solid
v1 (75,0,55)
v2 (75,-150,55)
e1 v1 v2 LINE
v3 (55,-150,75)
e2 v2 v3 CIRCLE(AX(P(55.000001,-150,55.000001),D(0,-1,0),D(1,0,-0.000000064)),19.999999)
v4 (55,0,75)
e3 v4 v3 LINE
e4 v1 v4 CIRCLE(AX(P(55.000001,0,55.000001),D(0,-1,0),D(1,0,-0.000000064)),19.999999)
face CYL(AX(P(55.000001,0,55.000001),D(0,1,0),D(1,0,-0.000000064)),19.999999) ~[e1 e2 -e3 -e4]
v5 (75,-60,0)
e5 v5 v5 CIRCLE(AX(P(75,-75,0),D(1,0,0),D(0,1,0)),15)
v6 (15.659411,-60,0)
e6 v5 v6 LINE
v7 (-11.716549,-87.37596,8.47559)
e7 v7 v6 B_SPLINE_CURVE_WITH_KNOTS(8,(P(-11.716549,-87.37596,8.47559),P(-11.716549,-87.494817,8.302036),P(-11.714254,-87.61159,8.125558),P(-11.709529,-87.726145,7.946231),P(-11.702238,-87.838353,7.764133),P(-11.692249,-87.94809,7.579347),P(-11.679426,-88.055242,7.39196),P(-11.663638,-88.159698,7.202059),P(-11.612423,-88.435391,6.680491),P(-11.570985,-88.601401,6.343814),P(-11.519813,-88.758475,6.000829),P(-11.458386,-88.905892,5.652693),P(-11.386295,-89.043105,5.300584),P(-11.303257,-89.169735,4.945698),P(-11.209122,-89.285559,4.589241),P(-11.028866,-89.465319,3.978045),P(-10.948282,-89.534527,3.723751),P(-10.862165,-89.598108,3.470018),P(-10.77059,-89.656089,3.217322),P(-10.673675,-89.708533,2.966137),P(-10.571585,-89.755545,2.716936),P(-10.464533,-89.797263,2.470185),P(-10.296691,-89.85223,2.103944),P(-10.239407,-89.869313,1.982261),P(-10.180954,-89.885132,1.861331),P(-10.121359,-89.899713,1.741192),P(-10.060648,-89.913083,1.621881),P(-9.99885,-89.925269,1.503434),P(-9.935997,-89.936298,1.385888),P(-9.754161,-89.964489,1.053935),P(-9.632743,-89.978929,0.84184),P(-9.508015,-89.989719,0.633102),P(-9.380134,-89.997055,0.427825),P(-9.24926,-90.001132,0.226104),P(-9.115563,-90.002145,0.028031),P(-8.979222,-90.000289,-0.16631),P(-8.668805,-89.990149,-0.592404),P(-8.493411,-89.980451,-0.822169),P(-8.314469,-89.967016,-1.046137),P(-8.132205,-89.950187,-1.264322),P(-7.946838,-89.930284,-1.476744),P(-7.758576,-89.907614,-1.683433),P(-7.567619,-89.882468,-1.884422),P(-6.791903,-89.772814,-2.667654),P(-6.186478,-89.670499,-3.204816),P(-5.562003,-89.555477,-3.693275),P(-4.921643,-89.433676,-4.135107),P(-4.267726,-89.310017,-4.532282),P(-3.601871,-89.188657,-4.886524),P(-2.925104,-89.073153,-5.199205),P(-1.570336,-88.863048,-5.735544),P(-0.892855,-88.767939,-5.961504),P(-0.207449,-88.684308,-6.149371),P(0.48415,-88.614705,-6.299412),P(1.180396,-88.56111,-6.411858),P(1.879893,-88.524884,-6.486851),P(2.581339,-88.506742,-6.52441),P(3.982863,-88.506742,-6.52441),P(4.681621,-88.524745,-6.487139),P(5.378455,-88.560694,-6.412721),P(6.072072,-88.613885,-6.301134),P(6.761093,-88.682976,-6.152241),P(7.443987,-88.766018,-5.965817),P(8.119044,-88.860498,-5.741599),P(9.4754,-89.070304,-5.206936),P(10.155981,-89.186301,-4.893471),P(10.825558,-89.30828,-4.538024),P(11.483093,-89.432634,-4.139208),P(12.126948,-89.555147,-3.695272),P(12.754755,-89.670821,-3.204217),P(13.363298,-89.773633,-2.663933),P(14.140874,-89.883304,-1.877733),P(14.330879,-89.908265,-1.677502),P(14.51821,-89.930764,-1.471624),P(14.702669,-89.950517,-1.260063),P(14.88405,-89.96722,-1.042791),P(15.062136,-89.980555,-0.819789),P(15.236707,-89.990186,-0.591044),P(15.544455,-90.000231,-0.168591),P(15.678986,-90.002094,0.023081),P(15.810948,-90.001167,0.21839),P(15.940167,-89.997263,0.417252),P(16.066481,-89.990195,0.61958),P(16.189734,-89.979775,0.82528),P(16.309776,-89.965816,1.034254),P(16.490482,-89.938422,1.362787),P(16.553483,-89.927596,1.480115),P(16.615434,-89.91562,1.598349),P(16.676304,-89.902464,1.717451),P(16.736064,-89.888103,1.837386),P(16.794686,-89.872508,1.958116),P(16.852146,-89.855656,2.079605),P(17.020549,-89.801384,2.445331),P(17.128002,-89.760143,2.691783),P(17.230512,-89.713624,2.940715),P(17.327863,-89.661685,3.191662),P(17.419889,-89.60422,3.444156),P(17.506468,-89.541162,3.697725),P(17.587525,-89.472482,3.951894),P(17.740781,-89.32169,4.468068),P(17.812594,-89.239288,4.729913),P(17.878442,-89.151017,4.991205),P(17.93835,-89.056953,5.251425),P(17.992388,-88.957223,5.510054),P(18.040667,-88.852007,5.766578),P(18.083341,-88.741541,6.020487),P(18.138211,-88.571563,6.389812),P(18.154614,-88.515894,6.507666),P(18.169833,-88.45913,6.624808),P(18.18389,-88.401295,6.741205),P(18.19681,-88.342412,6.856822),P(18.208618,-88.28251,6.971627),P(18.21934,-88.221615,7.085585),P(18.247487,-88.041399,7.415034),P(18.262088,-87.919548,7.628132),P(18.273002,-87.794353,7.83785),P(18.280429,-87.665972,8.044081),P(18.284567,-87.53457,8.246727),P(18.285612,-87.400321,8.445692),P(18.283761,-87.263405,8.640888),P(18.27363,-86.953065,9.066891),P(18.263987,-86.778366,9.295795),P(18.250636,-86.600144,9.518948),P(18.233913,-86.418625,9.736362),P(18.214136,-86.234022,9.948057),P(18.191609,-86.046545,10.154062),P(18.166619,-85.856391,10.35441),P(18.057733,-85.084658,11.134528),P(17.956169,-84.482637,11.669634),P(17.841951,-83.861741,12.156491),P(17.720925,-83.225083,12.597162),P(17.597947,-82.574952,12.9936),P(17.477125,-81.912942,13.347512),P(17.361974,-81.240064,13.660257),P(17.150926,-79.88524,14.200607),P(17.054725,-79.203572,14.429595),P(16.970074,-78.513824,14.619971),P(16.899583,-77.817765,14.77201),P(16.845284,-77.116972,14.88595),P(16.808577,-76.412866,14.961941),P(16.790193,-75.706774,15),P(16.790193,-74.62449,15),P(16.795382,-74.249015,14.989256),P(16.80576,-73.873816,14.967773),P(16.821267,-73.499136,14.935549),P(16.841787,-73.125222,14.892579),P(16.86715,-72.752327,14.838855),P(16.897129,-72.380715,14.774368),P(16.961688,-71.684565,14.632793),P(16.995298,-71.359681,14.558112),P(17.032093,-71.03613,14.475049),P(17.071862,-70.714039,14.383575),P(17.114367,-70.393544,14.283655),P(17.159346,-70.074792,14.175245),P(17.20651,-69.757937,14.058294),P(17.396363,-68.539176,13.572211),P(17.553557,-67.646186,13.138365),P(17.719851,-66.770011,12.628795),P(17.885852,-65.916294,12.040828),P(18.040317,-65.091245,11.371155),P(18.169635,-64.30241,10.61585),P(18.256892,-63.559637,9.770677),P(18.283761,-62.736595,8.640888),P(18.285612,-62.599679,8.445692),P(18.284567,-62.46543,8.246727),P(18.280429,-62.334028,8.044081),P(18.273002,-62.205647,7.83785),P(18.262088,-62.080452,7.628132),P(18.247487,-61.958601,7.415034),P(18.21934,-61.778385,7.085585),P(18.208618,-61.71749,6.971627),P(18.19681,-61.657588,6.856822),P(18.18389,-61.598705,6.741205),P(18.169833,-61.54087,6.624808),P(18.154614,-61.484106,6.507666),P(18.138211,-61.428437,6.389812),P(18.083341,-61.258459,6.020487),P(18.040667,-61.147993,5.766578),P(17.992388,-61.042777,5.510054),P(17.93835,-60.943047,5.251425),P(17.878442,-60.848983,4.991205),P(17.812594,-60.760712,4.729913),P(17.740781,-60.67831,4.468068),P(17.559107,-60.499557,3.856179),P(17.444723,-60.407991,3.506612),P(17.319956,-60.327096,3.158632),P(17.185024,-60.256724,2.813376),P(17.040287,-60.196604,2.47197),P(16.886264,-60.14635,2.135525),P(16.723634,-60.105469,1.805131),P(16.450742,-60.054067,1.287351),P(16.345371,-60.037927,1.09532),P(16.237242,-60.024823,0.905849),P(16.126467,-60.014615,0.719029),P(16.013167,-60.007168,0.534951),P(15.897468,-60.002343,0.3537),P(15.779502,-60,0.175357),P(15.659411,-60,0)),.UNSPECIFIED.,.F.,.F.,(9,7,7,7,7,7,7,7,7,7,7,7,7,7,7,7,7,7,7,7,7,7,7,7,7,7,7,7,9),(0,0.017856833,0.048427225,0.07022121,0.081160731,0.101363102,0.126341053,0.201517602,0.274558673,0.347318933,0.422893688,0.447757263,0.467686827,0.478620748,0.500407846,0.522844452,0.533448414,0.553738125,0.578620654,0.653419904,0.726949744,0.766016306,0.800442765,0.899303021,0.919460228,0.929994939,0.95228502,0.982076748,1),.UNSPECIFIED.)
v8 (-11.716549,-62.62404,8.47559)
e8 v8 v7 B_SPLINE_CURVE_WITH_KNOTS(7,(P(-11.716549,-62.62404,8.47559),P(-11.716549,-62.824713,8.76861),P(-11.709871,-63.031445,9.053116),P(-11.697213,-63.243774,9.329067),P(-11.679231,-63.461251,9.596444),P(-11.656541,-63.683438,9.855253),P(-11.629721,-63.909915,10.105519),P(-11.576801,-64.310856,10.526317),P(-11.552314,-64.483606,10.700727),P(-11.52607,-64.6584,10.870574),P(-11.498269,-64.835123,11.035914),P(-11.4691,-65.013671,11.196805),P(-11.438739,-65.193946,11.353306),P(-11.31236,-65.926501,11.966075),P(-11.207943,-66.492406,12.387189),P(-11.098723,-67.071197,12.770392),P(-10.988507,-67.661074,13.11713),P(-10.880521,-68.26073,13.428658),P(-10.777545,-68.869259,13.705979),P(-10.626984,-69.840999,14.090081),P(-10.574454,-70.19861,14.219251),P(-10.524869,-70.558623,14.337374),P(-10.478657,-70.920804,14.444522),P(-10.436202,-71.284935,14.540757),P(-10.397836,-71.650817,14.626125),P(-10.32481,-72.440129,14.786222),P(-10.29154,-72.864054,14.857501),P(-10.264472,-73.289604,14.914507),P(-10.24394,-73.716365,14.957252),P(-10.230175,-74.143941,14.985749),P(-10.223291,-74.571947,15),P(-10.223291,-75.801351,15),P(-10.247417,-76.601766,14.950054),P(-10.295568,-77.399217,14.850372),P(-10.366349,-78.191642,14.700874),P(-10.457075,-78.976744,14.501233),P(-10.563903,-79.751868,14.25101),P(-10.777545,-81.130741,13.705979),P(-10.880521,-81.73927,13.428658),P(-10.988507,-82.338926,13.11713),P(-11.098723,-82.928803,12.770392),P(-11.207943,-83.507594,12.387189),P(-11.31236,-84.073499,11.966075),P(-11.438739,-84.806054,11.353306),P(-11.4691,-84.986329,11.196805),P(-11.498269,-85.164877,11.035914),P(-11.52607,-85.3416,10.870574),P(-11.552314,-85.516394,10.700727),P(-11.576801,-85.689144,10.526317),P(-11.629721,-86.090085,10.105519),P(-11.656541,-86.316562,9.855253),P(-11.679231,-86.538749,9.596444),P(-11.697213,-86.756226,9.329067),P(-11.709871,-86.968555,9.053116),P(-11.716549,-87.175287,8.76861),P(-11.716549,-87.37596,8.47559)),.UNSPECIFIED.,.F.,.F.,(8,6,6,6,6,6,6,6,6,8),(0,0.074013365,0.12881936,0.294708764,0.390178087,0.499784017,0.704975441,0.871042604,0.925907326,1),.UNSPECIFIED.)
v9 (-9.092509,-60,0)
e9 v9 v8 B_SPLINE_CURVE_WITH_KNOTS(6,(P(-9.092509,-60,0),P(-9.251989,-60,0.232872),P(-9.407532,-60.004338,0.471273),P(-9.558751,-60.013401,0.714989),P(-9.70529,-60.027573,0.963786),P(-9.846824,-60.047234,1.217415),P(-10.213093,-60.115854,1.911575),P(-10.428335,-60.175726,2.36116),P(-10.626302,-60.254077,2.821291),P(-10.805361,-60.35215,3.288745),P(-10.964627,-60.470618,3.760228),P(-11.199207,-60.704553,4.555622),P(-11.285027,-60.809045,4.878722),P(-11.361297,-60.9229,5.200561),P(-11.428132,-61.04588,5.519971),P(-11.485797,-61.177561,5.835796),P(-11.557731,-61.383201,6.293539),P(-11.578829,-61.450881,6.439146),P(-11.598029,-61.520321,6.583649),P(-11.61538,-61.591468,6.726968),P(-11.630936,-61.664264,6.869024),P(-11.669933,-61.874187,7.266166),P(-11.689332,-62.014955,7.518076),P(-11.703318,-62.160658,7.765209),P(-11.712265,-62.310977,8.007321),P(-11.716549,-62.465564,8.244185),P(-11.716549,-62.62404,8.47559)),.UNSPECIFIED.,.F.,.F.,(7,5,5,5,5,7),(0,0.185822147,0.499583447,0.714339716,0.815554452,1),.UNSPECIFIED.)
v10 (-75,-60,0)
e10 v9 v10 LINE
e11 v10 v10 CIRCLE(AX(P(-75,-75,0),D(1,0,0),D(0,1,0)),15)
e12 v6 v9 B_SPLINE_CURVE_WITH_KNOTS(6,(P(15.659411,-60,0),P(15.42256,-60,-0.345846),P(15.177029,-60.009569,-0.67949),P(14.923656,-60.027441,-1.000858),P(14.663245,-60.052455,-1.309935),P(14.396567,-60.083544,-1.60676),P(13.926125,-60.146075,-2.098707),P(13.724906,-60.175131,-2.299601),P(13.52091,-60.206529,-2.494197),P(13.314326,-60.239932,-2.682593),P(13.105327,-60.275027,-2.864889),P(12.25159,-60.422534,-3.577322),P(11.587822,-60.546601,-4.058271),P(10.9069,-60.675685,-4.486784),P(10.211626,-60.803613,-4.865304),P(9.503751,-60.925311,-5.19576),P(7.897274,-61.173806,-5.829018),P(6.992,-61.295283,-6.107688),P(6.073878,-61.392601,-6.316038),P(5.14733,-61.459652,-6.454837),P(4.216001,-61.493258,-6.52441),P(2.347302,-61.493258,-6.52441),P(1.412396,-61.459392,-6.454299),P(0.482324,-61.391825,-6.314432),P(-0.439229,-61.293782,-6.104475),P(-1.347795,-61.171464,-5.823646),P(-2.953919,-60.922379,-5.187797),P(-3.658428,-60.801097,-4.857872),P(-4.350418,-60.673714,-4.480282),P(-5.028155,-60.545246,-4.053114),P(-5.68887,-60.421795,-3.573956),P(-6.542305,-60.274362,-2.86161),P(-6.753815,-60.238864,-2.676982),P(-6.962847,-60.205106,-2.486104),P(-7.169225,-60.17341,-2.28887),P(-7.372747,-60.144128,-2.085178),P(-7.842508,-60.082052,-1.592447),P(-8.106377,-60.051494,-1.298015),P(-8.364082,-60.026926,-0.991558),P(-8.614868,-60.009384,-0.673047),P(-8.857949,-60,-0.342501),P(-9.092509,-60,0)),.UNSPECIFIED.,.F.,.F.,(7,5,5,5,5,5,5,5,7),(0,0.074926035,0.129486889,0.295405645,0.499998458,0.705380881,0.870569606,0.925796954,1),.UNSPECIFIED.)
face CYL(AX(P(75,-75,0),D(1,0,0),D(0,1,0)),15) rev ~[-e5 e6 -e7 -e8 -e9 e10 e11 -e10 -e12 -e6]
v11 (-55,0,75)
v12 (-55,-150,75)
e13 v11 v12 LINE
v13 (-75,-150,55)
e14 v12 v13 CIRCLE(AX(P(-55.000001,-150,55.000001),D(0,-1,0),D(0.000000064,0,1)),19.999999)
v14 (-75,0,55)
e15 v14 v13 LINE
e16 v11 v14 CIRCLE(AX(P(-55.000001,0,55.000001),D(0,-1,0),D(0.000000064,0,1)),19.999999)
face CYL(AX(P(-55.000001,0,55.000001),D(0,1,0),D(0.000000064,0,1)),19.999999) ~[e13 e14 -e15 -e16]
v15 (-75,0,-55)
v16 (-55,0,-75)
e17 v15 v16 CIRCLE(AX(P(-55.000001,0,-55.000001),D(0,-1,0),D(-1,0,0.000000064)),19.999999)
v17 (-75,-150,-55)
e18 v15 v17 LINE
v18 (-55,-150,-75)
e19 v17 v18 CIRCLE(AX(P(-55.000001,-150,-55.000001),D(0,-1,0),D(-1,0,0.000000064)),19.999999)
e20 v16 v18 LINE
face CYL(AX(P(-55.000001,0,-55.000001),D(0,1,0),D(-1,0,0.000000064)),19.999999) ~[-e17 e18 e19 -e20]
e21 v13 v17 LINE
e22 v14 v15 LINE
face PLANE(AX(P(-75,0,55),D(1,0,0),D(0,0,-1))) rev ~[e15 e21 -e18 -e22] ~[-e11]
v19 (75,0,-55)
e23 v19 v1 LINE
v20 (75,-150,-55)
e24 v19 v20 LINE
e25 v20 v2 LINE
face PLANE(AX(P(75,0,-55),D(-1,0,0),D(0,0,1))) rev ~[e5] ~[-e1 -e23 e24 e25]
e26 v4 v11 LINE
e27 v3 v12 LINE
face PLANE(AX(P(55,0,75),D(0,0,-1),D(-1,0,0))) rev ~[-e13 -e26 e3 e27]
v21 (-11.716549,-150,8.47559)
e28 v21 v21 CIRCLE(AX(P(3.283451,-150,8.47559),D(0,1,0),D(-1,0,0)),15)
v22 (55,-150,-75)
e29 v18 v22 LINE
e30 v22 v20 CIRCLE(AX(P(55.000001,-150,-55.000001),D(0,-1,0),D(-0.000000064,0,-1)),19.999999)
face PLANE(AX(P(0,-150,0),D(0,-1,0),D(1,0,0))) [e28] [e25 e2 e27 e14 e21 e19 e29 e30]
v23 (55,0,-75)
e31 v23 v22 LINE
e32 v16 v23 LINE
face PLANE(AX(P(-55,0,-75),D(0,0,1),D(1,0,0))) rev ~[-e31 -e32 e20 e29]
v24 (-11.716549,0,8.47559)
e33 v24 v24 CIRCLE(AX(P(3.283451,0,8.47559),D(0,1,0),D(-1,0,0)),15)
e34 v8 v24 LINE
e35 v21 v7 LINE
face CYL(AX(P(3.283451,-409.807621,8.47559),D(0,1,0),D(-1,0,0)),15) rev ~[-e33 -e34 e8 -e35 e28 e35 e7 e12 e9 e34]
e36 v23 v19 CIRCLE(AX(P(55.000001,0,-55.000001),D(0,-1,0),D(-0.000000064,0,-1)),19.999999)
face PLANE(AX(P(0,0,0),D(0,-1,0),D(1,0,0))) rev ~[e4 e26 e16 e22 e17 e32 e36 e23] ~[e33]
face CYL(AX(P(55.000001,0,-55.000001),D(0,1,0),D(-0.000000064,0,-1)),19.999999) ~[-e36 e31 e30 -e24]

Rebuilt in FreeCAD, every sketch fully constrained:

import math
import FreeCAD as App
import Part
import Sketcher
Q = App.Units.Quantity

doc = App.newDocument("Part")
body = doc.addObject("PartDesign::Body", "Body")

sketch1 = body.newObject("Sketcher::SketchObject", "Sketch")
sketch1.AttachmentSupport = (doc.getObject("XZ_Plane"), [""])
sketch1.MapMode = "FlatFace"
sketch1.addGeometry([
    Part.ArcOfCircle(Part.Circle(App.Vector(55, 55, 0), App.Vector(0, 0, 1), 20), math.radians(0), math.radians(90)),
    Part.LineSegment(App.Vector(55, 75, 0), App.Vector(-55, 75, 0)),
    Part.ArcOfCircle(Part.Circle(App.Vector(-55, 55, 0), App.Vector(0, 0, 1), 20), math.radians(90), math.radians(180)),
    Part.LineSegment(App.Vector(-75, 55, 0), App.Vector(-75, -55, 0)),
    Part.ArcOfCircle(Part.Circle(App.Vector(-55, -55, 0), App.Vector(0, 0, 1), 20), math.radians(180), math.radians(270)),
    Part.LineSegment(App.Vector(-55, -75, 0), App.Vector(55, -75, 0)),
    Part.ArcOfCircle(Part.Circle(App.Vector(55, -55, 0), App.Vector(0, 0, 1), 20), math.radians(-90), math.radians(0)),
    Part.LineSegment(App.Vector(75, -55, 0), App.Vector(75, 55, 0)),
], False)
sketch1.addConstraint([
    Sketcher.Constraint("Tangent", 0, 2, 1, 1),
    Sketcher.Constraint("Tangent", 1, 2, 2, 1),
    Sketcher.Constraint("Tangent", 2, 2, 3, 1),
    Sketcher.Constraint("Tangent", 3, 2, 4, 1),
    Sketcher.Constraint("Tangent", 4, 2, 5, 1),
    Sketcher.Constraint("Tangent", 5, 2, 6, 1),
    Sketcher.Constraint("Tangent", 6, 2, 7, 1),
    Sketcher.Constraint("Tangent", 7, 2, 0, 1),
    Sketcher.Constraint("Horizontal", 1),
    Sketcher.Constraint("Vertical", 3),
    Sketcher.Constraint("Horizontal", 5),
    Sketcher.Constraint("Vertical", 7),
    Sketcher.Constraint("Equal", 0, 2),
    Sketcher.Constraint("Equal", 2, 4),
    Sketcher.Constraint("Equal", 4, 6),
    Sketcher.Constraint("Symmetric", 0, 3, 4, 3, -1, 1),
    Sketcher.Constraint("Equal", 5, 3),
    Sketcher.Constraint("Radius", 0, Q("19.999999 mm")),
    Sketcher.Constraint("DistanceX", 1, 2, 1, 1, Q("110 mm")),
])
pad1 = body.newObject("PartDesign::Pad", "Pad")
pad1.Profile = sketch1
pad1.Length = 150

sketch2 = body.newObject("Sketcher::SketchObject", "Sketch001")
sketch2.AttachmentSupport = (doc.getObject("XZ_Plane"), [""])
sketch2.MapMode = "FlatFace"
sketch2.AttachmentOffset = App.Placement(App.Vector(0, 0, 150), App.Rotation())
sketch2.addGeometry(Part.Circle(App.Vector(3, 8, 0), App.Vector(0, 0, 1), 15), False)
sketch2.addConstraint([
    Sketcher.Constraint("Diameter", 0, Q("30 mm")),
    Sketcher.Constraint("DistanceX", -1, 1, 0, 3, Q("3.283451 mm")),
    Sketcher.Constraint("DistanceY", -1, 1, 0, 3, Q("8.47559 mm")),
])
doc.recompute()
hole = body.newObject("PartDesign::Hole", "Hole")
hole.Profile = sketch2
hole.ThreadType = "None"
hole.Diameter = 30
hole.DepthType = "ThroughAll"

sketch3 = body.newObject("Sketcher::SketchObject", "Sketch002")
sketch3.AttachmentSupport = (doc.getObject("YZ_Plane"), [""])
sketch3.MapMode = "FlatFace"
sketch3.AttachmentOffset = App.Placement(App.Vector(0, 0, 75), App.Rotation())
sketch3.addGeometry(Part.Circle(App.Vector(-75, 0, 0), App.Vector(0, 0, 1), 15), False)
sketch3.addConstraint([
    Sketcher.Constraint("PointOnObject", 0, 3, -1),
    Sketcher.Constraint("Diameter", 0, Q("30 mm")),
    Sketcher.Constraint("DistanceX", 0, 3, -1, 1, Q("75 mm")),
])
pocket1 = body.newObject("PartDesign::Pocket", "Pocket")
pocket1.Profile = sketch3
pocket1.Length = 150

doc.recompute()
